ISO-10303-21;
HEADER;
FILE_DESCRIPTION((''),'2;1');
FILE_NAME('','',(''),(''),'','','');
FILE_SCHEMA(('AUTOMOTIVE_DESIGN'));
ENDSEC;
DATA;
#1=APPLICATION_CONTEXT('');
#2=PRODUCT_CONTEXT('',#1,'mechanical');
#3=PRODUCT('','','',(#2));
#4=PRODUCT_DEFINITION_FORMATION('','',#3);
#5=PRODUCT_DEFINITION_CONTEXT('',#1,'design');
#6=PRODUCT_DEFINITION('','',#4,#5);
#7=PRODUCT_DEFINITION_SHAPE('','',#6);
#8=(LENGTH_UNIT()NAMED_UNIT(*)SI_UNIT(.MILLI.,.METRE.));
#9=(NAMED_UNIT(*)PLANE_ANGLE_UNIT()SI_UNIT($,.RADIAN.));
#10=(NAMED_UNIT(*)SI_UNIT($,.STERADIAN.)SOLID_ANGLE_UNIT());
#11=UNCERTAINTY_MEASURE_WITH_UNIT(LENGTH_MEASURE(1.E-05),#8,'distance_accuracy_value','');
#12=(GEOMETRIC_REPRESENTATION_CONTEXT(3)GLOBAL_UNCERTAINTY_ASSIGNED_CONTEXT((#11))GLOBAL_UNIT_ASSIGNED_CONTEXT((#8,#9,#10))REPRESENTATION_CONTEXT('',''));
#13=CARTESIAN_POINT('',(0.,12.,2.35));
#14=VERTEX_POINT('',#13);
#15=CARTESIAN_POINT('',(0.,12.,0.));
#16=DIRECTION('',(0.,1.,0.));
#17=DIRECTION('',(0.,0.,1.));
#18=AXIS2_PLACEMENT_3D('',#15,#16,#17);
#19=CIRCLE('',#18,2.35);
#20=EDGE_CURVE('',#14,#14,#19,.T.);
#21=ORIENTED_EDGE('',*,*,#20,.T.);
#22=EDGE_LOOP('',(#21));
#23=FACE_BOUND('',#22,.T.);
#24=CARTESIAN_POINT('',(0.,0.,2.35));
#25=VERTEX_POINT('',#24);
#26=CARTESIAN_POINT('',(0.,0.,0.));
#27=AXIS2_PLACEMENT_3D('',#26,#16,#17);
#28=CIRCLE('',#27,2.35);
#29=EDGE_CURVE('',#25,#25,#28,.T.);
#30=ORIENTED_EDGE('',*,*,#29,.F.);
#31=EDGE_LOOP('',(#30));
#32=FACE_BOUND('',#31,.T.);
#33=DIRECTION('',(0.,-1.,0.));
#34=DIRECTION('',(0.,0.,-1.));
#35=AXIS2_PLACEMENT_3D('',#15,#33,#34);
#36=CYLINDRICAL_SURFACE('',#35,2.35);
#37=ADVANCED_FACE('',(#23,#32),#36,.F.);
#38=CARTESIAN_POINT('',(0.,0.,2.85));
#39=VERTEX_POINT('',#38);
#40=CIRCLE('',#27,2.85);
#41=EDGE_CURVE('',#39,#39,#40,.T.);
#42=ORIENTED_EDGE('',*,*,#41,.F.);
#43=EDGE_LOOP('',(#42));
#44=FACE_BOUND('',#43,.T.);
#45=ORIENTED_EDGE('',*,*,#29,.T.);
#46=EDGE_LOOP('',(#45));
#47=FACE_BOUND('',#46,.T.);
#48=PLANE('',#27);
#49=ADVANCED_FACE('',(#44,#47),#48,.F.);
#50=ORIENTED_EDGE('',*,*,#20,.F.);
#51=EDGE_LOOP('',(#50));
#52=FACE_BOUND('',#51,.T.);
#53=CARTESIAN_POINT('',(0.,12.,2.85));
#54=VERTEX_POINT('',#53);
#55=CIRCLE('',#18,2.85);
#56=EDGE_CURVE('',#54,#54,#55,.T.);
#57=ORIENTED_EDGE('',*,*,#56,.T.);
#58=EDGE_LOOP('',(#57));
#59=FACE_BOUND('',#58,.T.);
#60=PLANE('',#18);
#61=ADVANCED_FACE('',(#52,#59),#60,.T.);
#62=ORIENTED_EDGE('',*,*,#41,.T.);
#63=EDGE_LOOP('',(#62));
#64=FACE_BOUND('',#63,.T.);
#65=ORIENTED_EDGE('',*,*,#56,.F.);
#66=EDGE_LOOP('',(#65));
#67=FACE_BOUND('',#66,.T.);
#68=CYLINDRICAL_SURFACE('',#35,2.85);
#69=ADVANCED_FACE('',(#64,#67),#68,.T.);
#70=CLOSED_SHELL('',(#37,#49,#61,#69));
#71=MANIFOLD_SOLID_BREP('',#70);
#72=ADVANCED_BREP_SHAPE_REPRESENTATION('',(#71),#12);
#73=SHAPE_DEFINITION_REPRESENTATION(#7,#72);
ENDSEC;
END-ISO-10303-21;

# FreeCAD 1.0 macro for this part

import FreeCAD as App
import Part
import Sketcher

doc = App.newDocument("Part")
body = doc.addObject("PartDesign::Body", "Body")

# Sketch on XZ plane
sketch1 = body.newObject("Sketcher::SketchObject", "Sketch")
sketch1.AttachmentSupport = (doc.getObject("XZ_Plane"), [""])
sketch1.MapMode = "FlatFace"
sketch1.addGeometry([
    Part.Circle(App.Vector(0, 0, 0), App.Vector(0, 0, 1), 2.9),
    Part.Circle(App.Vector(0, 0, 0), App.Vector(0, 0, 1), 2.4),
], False)
sketch1.addConstraint([
    Sketcher.Constraint("Coincident", 0, 3, -1, 1),
    Sketcher.Constraint("Coincident", 1, 3, -1, 1),
    Sketcher.Constraint("Diameter", 0, 5.7),
    Sketcher.Constraint("Diameter", 1, 4.7),
])
pad1 = body.newObject("PartDesign::Pad", "Pad")
pad1.Profile = sketch1
pad1.Length = 12
pad1.Reversed = True

doc.recompute()
